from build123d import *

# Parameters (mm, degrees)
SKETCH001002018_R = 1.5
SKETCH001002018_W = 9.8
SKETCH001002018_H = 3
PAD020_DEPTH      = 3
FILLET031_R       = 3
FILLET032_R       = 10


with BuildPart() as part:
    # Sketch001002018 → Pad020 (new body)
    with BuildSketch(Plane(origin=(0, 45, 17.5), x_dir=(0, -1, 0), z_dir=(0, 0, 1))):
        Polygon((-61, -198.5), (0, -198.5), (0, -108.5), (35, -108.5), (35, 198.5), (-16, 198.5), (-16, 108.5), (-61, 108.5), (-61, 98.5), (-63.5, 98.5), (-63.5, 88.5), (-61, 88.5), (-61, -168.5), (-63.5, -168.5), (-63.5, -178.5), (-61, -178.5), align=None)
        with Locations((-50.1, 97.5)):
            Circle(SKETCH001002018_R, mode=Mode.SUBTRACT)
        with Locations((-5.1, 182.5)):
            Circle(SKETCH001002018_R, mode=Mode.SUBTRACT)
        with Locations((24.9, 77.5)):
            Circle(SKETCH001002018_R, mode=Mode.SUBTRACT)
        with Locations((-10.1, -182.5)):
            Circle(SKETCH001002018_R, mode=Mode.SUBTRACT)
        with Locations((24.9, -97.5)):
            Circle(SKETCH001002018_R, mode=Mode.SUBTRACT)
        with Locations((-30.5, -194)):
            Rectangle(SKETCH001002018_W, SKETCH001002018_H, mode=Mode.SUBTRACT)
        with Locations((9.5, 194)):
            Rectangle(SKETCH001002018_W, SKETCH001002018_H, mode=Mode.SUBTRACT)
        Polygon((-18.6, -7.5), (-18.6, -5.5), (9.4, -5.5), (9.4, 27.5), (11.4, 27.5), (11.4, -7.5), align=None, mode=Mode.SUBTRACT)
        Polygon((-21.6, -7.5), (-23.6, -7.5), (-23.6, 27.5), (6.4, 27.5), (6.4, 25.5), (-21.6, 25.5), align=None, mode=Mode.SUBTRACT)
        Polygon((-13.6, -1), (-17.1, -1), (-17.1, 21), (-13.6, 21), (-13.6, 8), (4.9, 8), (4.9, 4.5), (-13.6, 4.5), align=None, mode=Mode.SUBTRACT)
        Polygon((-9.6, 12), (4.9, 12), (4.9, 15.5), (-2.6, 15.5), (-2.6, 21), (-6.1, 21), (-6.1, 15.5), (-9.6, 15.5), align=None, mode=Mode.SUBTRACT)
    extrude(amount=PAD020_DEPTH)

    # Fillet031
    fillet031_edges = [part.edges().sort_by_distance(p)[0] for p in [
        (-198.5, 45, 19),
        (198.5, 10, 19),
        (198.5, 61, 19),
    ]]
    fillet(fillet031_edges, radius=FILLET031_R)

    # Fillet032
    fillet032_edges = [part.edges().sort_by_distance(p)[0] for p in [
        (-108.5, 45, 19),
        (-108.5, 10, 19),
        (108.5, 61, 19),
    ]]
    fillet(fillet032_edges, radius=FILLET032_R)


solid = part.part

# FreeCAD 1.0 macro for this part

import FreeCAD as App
import Part
import Sketcher
Q = App.Units.Quantity


def edges_at(feature, points):
    """Names of the edges that pass closest to the given points."""
    edges = feature.Shape.Edges
    near = lambda p: min(range(len(edges)), key=lambda i: edges[i].distToShape(Part.Vertex(*p))[0])
    return sorted({f"Edge{near(p) + 1}" for p in points})


def add_polygon(sketch, points):
    """Adds a closed chain of lines whose ends are joined by coincident constraints."""
    first, n = sketch.GeometryCount, len(points)
    for a, b in zip(points, points[1:] + points[:1]):
        sketch.addGeometry(Part.LineSegment(App.Vector(*a, 0), App.Vector(*b, 0)), False)
    for i in range(n):
        sketch.addConstraint(Sketcher.Constraint("Coincident", first + i, 2, first + (i + 1) % n, 1))

doc = App.newDocument("Part")
body = doc.addObject("PartDesign::Body", "Body")

# Sketch on XY plane
sketch1 = body.newObject("Sketcher::SketchObject", "Sketch")
sketch1.AttachmentSupport = (doc.getObject("XY_Plane"), [""])
sketch1.MapMode = "FlatFace"
sketch1.AttachmentOffset = App.Placement(App.Vector(0, 0, 17.5), App.Rotation())
add_polygon(sketch1, [(-198.5, 106), (-198.5, 45), (-108.5, 45), (-108.5, 10), (198.5, 10), (198.5, 61), (108.5, 61), (108.5, 106), (98.5, 106), (98.5, 108.5), (88.5, 108.5), (88.5, 106), (-168.5, 106), (-168.5, 108.5), (-178.5, 108.5), (-178.5, 106)])  # lines 0-15
add_polygon(sketch1, [(-195.5, 70.6), (-195.5, 80.4), (-192.5, 80.4), (-192.5, 70.6)])  # lines 16-19
sketch1.addGeometry(Part.Circle(App.Vector(-182.5, 55.1, 0), App.Vector(0, 0, 1), 1.5), False)  # 20
sketch1.addGeometry(Part.Circle(App.Vector(-97.5, 20.1, 0), App.Vector(0, 0, 1), 1.5), False)  # 21
sketch1.addGeometry(Part.Circle(App.Vector(97.5, 95.1, 0), App.Vector(0, 0, 1), 1.5), False)  # 22
add_polygon(sketch1, [(25.5, 66.6), (-7.5, 66.6), (-7.5, 68.6), (27.5, 68.6), (27.5, 38.6), (25.5, 38.6)])  # lines 23-28
add_polygon(sketch1, [(4.5, 58.6), (-1, 58.6), (-1, 62.1), (21, 62.1), (21, 58.6), (8, 58.6), (8, 40.1), (4.5, 40.1)])  # lines 29-36
add_polygon(sketch1, [(-7.5, 33.6), (-7.5, 63.6), (-5.5, 63.6), (-5.5, 35.6), (27.5, 35.6), (27.5, 33.6)])  # lines 37-42
add_polygon(sketch1, [(12, 40.1), (12, 54.6), (15.5, 54.6), (15.5, 51.1), (21, 51.1), (21, 47.6), (15.5, 47.6), (15.5, 40.1)])  # lines 43-50
sketch1.addGeometry(Part.Circle(App.Vector(77.5, 20.1, 0), App.Vector(0, 0, 1), 1.5), False)  # 51
sketch1.addGeometry(Part.Circle(App.Vector(182.5, 50.1, 0), App.Vector(0, 0, 1), 1.5), False)  # 52
add_polygon(sketch1, [(192.5, 30.6), (192.5, 40.4), (195.5, 40.4), (195.5, 30.6)])  # lines 53-56
sketch1.addConstraint(Sketcher.Constraint("Vertical", 0))
sketch1.addConstraint(Sketcher.Constraint("Horizontal", 1))
sketch1.addConstraint(Sketcher.Constraint("Vertical", 2))
sketch1.addConstraint(Sketcher.Constraint("Horizontal", 3))
sketch1.addConstraint(Sketcher.Constraint("Vertical", 4))
sketch1.addConstraint(Sketcher.Constraint("Horizontal", 5))
sketch1.addConstraint(Sketcher.Constraint("Vertical", 6))
sketch1.addConstraint(Sketcher.Constraint("Horizontal", 7))
sketch1.addConstraint(Sketcher.Constraint("Vertical", 8))
sketch1.addConstraint(Sketcher.Constraint("Horizontal", 9))
sketch1.addConstraint(Sketcher.Constraint("Vertical", 10))
sketch1.addConstraint(Sketcher.Constraint("Horizontal", 11))
sketch1.addConstraint(Sketcher.Constraint("Vertical", 12))
sketch1.addConstraint(Sketcher.Constraint("Horizontal", 13))
sketch1.addConstraint(Sketcher.Constraint("Vertical", 14))
sketch1.addConstraint(Sketcher.Constraint("Horizontal", 15))
sketch1.addConstraint(Sketcher.Constraint("Vertical", 16))
sketch1.addConstraint(Sketcher.Constraint("Horizontal", 17))
sketch1.addConstraint(Sketcher.Constraint("Vertical", 18))
sketch1.addConstraint(Sketcher.Constraint("Horizontal", 19))
sketch1.addConstraint(Sketcher.Constraint("Horizontal", 23))
sketch1.addConstraint(Sketcher.Constraint("Vertical", 24))
sketch1.addConstraint(Sketcher.Constraint("Horizontal", 25))
sketch1.addConstraint(Sketcher.Constraint("Vertical", 26))
sketch1.addConstraint(Sketcher.Constraint("Horizontal", 27))
sketch1.addConstraint(Sketcher.Constraint("Vertical", 28))
sketch1.addConstraint(Sketcher.Constraint("Horizontal", 29))
sketch1.addConstraint(Sketcher.Constraint("Vertical", 30))
sketch1.addConstraint(Sketcher.Constraint("Horizontal", 31))
sketch1.addConstraint(Sketcher.Constraint("Vertical", 32))
sketch1.addConstraint(Sketcher.Constraint("Horizontal", 33))
sketch1.addConstraint(Sketcher.Constraint("Vertical", 34))
sketch1.addConstraint(Sketcher.Constraint("Horizontal", 35))
sketch1.addConstraint(Sketcher.Constraint("Vertical", 36))
sketch1.addConstraint(Sketcher.Constraint("Vertical", 37))
sketch1.addConstraint(Sketcher.Constraint("Horizontal", 38))
sketch1.addConstraint(Sketcher.Constraint("Vertical", 39))
sketch1.addConstraint(Sketcher.Constraint("Horizontal", 40))
sketch1.addConstraint(Sketcher.Constraint("Vertical", 41))
sketch1.addConstraint(Sketcher.Constraint("Horizontal", 42))
sketch1.addConstraint(Sketcher.Constraint("Vertical", 43))
sketch1.addConstraint(Sketcher.Constraint("Horizontal", 44))
sketch1.addConstraint(Sketcher.Constraint("Vertical", 45))
sketch1.addConstraint(Sketcher.Constraint("Horizontal", 46))
sketch1.addConstraint(Sketcher.Constraint("Vertical", 47))
sketch1.addConstraint(Sketcher.Constraint("Horizontal", 48))
sketch1.addConstraint(Sketcher.Constraint("Vertical", 49))
sketch1.addConstraint(Sketcher.Constraint("Horizontal", 50))
sketch1.addConstraint(Sketcher.Constraint("Vertical", 53))
sketch1.addConstraint(Sketcher.Constraint("Horizontal", 54))
sketch1.addConstraint(Sketcher.Constraint("Vertical", 55))
sketch1.addConstraint(Sketcher.Constraint("Horizontal", 56))
sketch1.addConstraint(Sketcher.Constraint("Equal", 20, 21))
sketch1.addConstraint(Sketcher.Constraint("Equal", 21, 22))
sketch1.addConstraint(Sketcher.Constraint("Equal", 22, 51))
sketch1.addConstraint(Sketcher.Constraint("Equal", 51, 52))
sketch1.addConstraint(Sketcher.Constraint("Horizontal", 21, 3, 51, 3))
sketch1.addConstraint(Sketcher.Constraint("Horizontal", 7, 2, 10, 2))
sketch1.addConstraint(Sketcher.Constraint("Horizontal", 9, 2, 12, 2))
sketch1.addConstraint(Sketcher.Constraint("Horizontal", 11, 2, 14, 2))
sketch1.addConstraint(Sketcher.Constraint("Horizontal", 29, 2, 32, 2))
sketch1.addConstraint(Sketcher.Constraint("Horizontal", 35, 2, 49, 2))
sketch1.addConstraint(Sketcher.Constraint("Vertical", 24, 2, 37, 2))
sketch1.addConstraint(Sketcher.Constraint("Vertical", 26, 2, 40, 2))
sketch1.addConstraint(Sketcher.Constraint("Vertical", 32, 2, 46, 2))
sketch1.addConstraint(Sketcher.Constraint("Vertical", 45, 2, 48, 2))
sketch1.addConstraint(Sketcher.Constraint("Equal", 1, 5))
sketch1.addConstraint(Sketcher.Constraint("Equal", 7, 9))
sketch1.addConstraint(Sketcher.Constraint("Equal", 9, 13))
sketch1.addConstraint(Sketcher.Constraint("Equal", 27, 38))
sketch1.addConstraint(Sketcher.Constraint("Equal", 35, 44))
sketch1.addConstraint(Sketcher.Constraint("Equal", 29, 46))
sketch1.addConstraint(Sketcher.Constraint("Equal", 19, 54))
sketch1.addConstraint(Sketcher.Constraint("Equal", 42, 2))
sketch1.addConstraint(Sketcher.Constraint("Equal", 38, 24))
sketch1.addConstraint(Sketcher.Constraint("Equal", 50, 30))
sketch1.addConstraint(Sketcher.Constraint("Equal", 26, 37))
sketch1.addConstraint(Sketcher.Constraint("Equal", 28, 39))
sketch1.addConstraint(Sketcher.Constraint("Equal", 32, 45))
sketch1.addConstraint(Sketcher.Constraint("Equal", 45, 47))
sketch1.addConstraint(Sketcher.Constraint("Equal", 18, 53))
sketch1.addConstraint(Sketcher.Constraint("Diameter", 20, Q("3 mm")))
sketch1.addConstraint(Sketcher.Constraint("DistanceX", 1, 1, 1, 2, Q("90 mm")))
sketch1.addConstraint(Sketcher.Constraint("DistanceX", 3, 1, 3, 2, Q("307 mm")))
sketch1.addConstraint(Sketcher.Constraint("DistanceX", 7, 2, 7, 1, Q("10 mm")))
sketch1.addConstraint(Sketcher.Constraint("DistanceX", 11, 2, 11, 1, Q("257 mm")))
sketch1.addConstraint(Sketcher.Constraint("DistanceX", 17, 1, 17, 2, Q("3 mm")))
sketch1.addConstraint(Sketcher.Constraint("DistanceX", 23, 2, 23, 1, Q("33 mm")))
sketch1.addConstraint(Sketcher.Constraint("DistanceX", 25, 1, 25, 2, Q("35 mm")))
sketch1.addConstraint(Sketcher.Constraint("DistanceX", 31, 1, 31, 2, Q("22 mm")))
sketch1.addConstraint(Sketcher.Constraint("DistanceX", 33, 2, 33, 1, Q("13 mm")))
sketch1.addConstraint(Sketcher.Constraint("DistanceY", 0, 2, 0, 1, Q("61 mm")))
sketch1.addConstraint(Sketcher.Constraint("DistanceY", 4, 1, 4, 2, Q("51 mm")))
sketch1.addConstraint(Sketcher.Constraint("DistanceY", 26, 2, 26, 1, Q("30 mm")))
sketch1.addConstraint(Sketcher.Constraint("DistanceX", 29, 2, 29, 1, Q("5.5 mm")))
sketch1.addConstraint(Sketcher.Constraint("DistanceY", 8, 1, 8, 2, Q("2.5 mm")))
sketch1.addConstraint(Sketcher.Constraint("DistanceY", 16, 1, 16, 2, Q("9.8 mm")))
sketch1.addConstraint(Sketcher.Constraint("DistanceY", 34, 2, 34, 1, Q("18.5 mm")))
sketch1.addConstraint(Sketcher.Constraint("DistanceY", 43, 1, 43, 2, Q("14.5 mm")))
sketch1.addConstraint(Sketcher.Constraint("DistanceY", -1, 1, 0, 2, Q("45 mm")))
sketch1.addConstraint(Sketcher.Constraint("DistanceX", 29, 2, -1, 1, Q("1 mm")))
sketch1.addConstraint(Sketcher.Constraint("DistanceX", 20, 3, 21, 3, Q("85 mm")))
sketch1.addConstraint(Sketcher.Constraint("DistanceY", 21, 3, 20, 3, Q("35 mm")))
sketch1.addConstraint(Sketcher.Constraint("DistanceX", 21, 3, 22, 3, Q("195 mm")))
sketch1.addConstraint(Sketcher.Constraint("DistanceY", 21, 3, 22, 3, Q("75 mm")))
sketch1.addConstraint(Sketcher.Constraint("DistanceX", 51, 3, 22, 3, Q("20 mm")))
sketch1.addConstraint(Sketcher.Constraint("DistanceX", 22, 3, 52, 3, Q("85 mm")))
sketch1.addConstraint(Sketcher.Constraint("DistanceY", 52, 3, 22, 3, Q("45 mm")))
sketch1.addConstraint(Sketcher.Constraint("DistanceX", 0, 2, 20, 3, Q("16 mm")))
sketch1.addConstraint(Sketcher.Constraint("DistanceX", 15, 2, 16, 2, Q("3 mm")))
sketch1.addConstraint(Sketcher.Constraint("DistanceX", 23, 2, 51, 3, Q("85 mm")))
sketch1.addConstraint(Sketcher.Constraint("DistanceY", 29, 2, 23, 2, Q("8 mm")))
sketch1.addConstraint(Sketcher.Constraint("DistanceX", 35, 2, 27, 2, Q("21 mm")))
sketch1.addConstraint(Sketcher.Constraint("DistanceY", 37, 2, 23, 2, Q("3 mm")))
sketch1.addConstraint(Sketcher.Constraint("DistanceX", 52, 3, 53, 2, Q("10 mm")))
sketch1.addConstraint(Sketcher.Constraint("DistanceY", -1, 1, 20, 3, Q("55.1 mm")))
sketch1.addConstraint(Sketcher.Constraint("DistanceY", -1, 1, 16, 2, Q("80.4 mm")))
sketch1.addConstraint(Sketcher.Constraint("DistanceY", -1, 1, 23, 2, Q("66.6 mm")))
sketch1.addConstraint(Sketcher.Constraint("DistanceY", -1, 1, 53, 2, Q("40.4 mm")))
pad1 = body.newObject("PartDesign::Pad", "Pad")
pad1.Profile = sketch1
pad1.Length = 3
doc.recompute()

fillet = body.newObject("PartDesign::Fillet", "Fillet")
fillet.Base = (pad1, edges_at(pad1, [(-198.5, 45, 19), (198.5, 10, 19), (198.5, 61, 19)]))
fillet.Radius = 3
doc.recompute()

fillet2 = body.newObject("PartDesign::Fillet", "Fillet001")
fillet2.Base = (fillet, edges_at(fillet, [(-108.5, 45, 19), (-108.5, 10, 19), (108.5, 61, 19)]))
fillet2.Radius = 10

doc.recompute()
